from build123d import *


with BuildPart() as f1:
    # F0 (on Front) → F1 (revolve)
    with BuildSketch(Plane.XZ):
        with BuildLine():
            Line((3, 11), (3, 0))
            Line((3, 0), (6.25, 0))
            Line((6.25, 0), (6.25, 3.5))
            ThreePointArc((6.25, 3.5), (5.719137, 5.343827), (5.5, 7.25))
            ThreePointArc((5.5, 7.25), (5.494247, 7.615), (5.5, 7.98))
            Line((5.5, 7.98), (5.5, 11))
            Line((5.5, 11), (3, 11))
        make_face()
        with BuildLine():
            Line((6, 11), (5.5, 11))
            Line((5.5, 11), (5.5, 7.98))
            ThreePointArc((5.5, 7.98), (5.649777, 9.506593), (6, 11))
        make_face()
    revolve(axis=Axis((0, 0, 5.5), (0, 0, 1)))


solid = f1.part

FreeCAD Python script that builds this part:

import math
import FreeCAD as App
import Part
import Sketcher

doc = App.newDocument("Part")
body = doc.addObject("PartDesign::Body", "Body")

# Sketch on XZ plane
sketch1 = body.newObject("Sketcher::SketchObject", "Sketch")
sketch1.AttachmentSupport = (doc.getObject("XZ_Plane"), [""])
sketch1.MapMode = "FlatFace"
sketch1.addGeometry([
    Part.LineSegment(App.Vector(3, 11, 0), App.Vector(3, 0, 0)),  # 0
    Part.LineSegment(App.Vector(3, 0, 0), App.Vector(6.2, 0, 0)),  # 1
    Part.LineSegment(App.Vector(6.2, 0, 0), App.Vector(6.2, 3.5, 0)),  # 2
    Part.ArcOfCircle(Part.Circle(App.Vector(17.1, 7.6, 0), App.Vector(0, 0, 1), 11.6), math.radians(-178.19), math.radians(-159.19)),  # 3
    Part.ArcOfCircle(Part.Circle(App.Vector(17.1, 7.6, 0), App.Vector(0, 0, 1), 11.6), math.radians(178.19), math.radians(181.81)),  # 4
    Part.ArcOfCircle(Part.Circle(App.Vector(17.1, 7.6, 0), App.Vector(0, 0, 1), 11.6), math.radians(163), math.radians(178.19)),  # 5
    Part.LineSegment(App.Vector(6, 11, 0), App.Vector(3, 11, 0)),  # 6
], False)
sketch1.addConstraint([
    Sketcher.Constraint("Coincident", 0, 2, 1, 1),
    Sketcher.Constraint("Coincident", 1, 2, 2, 1),
    Sketcher.Constraint("Coincident", 2, 2, 3, 2),
    Sketcher.Constraint("Coincident", 3, 1, 4, 2),
    Sketcher.Constraint("Coincident", 4, 1, 5, 2),
    Sketcher.Constraint("Coincident", 5, 1, 6, 1),
    Sketcher.Constraint("Coincident", 6, 2, 0, 1),
    Sketcher.Constraint("Vertical", 0),
    Sketcher.Constraint("Horizontal", 1),
    Sketcher.Constraint("Vertical", 2),
    Sketcher.Constraint("Horizontal", 6),
    Sketcher.Constraint("PointOnObject", 0, 2, -1),
    Sketcher.Constraint("Horizontal", 3, 3, 4, 3),
    Sketcher.Constraint("Vertical", 3, 1, 4, 1),
    Sketcher.Constraint("DistanceX", 6, 2, 6, 1, 3.0),
    Sketcher.Constraint("DistanceY", 0, 2, 0, 1, 11.0),
    Sketcher.Constraint("DistanceY", 2, 1, 2, 2, 3.5),
    Sketcher.Constraint("DistanceX", -1, 1, 0, 2, 3.0),
    Sketcher.Constraint("DistanceX", 1, 1, 1, 2, 3.25),
    Sketcher.Constraint("DistanceX", -1, 1, 3, 1, 5.5),
    Sketcher.Constraint("DistanceY", -1, 1, 3, 1, 7.25),
    Sketcher.Constraint("DistanceY", -1, 1, 4, 1, 7.98),
    Sketcher.Constraint("Radius", 4, 11.581618),
    Sketcher.Constraint("Radius", 5, 11.580779),
])
revolution = body.newObject("PartDesign::Revolution", "Revolution")
revolution.Profile = sketch1
revolution.ReferenceAxis = (sketch1, ["V_Axis"])
revolution.Angle = 360

doc.recompute()
